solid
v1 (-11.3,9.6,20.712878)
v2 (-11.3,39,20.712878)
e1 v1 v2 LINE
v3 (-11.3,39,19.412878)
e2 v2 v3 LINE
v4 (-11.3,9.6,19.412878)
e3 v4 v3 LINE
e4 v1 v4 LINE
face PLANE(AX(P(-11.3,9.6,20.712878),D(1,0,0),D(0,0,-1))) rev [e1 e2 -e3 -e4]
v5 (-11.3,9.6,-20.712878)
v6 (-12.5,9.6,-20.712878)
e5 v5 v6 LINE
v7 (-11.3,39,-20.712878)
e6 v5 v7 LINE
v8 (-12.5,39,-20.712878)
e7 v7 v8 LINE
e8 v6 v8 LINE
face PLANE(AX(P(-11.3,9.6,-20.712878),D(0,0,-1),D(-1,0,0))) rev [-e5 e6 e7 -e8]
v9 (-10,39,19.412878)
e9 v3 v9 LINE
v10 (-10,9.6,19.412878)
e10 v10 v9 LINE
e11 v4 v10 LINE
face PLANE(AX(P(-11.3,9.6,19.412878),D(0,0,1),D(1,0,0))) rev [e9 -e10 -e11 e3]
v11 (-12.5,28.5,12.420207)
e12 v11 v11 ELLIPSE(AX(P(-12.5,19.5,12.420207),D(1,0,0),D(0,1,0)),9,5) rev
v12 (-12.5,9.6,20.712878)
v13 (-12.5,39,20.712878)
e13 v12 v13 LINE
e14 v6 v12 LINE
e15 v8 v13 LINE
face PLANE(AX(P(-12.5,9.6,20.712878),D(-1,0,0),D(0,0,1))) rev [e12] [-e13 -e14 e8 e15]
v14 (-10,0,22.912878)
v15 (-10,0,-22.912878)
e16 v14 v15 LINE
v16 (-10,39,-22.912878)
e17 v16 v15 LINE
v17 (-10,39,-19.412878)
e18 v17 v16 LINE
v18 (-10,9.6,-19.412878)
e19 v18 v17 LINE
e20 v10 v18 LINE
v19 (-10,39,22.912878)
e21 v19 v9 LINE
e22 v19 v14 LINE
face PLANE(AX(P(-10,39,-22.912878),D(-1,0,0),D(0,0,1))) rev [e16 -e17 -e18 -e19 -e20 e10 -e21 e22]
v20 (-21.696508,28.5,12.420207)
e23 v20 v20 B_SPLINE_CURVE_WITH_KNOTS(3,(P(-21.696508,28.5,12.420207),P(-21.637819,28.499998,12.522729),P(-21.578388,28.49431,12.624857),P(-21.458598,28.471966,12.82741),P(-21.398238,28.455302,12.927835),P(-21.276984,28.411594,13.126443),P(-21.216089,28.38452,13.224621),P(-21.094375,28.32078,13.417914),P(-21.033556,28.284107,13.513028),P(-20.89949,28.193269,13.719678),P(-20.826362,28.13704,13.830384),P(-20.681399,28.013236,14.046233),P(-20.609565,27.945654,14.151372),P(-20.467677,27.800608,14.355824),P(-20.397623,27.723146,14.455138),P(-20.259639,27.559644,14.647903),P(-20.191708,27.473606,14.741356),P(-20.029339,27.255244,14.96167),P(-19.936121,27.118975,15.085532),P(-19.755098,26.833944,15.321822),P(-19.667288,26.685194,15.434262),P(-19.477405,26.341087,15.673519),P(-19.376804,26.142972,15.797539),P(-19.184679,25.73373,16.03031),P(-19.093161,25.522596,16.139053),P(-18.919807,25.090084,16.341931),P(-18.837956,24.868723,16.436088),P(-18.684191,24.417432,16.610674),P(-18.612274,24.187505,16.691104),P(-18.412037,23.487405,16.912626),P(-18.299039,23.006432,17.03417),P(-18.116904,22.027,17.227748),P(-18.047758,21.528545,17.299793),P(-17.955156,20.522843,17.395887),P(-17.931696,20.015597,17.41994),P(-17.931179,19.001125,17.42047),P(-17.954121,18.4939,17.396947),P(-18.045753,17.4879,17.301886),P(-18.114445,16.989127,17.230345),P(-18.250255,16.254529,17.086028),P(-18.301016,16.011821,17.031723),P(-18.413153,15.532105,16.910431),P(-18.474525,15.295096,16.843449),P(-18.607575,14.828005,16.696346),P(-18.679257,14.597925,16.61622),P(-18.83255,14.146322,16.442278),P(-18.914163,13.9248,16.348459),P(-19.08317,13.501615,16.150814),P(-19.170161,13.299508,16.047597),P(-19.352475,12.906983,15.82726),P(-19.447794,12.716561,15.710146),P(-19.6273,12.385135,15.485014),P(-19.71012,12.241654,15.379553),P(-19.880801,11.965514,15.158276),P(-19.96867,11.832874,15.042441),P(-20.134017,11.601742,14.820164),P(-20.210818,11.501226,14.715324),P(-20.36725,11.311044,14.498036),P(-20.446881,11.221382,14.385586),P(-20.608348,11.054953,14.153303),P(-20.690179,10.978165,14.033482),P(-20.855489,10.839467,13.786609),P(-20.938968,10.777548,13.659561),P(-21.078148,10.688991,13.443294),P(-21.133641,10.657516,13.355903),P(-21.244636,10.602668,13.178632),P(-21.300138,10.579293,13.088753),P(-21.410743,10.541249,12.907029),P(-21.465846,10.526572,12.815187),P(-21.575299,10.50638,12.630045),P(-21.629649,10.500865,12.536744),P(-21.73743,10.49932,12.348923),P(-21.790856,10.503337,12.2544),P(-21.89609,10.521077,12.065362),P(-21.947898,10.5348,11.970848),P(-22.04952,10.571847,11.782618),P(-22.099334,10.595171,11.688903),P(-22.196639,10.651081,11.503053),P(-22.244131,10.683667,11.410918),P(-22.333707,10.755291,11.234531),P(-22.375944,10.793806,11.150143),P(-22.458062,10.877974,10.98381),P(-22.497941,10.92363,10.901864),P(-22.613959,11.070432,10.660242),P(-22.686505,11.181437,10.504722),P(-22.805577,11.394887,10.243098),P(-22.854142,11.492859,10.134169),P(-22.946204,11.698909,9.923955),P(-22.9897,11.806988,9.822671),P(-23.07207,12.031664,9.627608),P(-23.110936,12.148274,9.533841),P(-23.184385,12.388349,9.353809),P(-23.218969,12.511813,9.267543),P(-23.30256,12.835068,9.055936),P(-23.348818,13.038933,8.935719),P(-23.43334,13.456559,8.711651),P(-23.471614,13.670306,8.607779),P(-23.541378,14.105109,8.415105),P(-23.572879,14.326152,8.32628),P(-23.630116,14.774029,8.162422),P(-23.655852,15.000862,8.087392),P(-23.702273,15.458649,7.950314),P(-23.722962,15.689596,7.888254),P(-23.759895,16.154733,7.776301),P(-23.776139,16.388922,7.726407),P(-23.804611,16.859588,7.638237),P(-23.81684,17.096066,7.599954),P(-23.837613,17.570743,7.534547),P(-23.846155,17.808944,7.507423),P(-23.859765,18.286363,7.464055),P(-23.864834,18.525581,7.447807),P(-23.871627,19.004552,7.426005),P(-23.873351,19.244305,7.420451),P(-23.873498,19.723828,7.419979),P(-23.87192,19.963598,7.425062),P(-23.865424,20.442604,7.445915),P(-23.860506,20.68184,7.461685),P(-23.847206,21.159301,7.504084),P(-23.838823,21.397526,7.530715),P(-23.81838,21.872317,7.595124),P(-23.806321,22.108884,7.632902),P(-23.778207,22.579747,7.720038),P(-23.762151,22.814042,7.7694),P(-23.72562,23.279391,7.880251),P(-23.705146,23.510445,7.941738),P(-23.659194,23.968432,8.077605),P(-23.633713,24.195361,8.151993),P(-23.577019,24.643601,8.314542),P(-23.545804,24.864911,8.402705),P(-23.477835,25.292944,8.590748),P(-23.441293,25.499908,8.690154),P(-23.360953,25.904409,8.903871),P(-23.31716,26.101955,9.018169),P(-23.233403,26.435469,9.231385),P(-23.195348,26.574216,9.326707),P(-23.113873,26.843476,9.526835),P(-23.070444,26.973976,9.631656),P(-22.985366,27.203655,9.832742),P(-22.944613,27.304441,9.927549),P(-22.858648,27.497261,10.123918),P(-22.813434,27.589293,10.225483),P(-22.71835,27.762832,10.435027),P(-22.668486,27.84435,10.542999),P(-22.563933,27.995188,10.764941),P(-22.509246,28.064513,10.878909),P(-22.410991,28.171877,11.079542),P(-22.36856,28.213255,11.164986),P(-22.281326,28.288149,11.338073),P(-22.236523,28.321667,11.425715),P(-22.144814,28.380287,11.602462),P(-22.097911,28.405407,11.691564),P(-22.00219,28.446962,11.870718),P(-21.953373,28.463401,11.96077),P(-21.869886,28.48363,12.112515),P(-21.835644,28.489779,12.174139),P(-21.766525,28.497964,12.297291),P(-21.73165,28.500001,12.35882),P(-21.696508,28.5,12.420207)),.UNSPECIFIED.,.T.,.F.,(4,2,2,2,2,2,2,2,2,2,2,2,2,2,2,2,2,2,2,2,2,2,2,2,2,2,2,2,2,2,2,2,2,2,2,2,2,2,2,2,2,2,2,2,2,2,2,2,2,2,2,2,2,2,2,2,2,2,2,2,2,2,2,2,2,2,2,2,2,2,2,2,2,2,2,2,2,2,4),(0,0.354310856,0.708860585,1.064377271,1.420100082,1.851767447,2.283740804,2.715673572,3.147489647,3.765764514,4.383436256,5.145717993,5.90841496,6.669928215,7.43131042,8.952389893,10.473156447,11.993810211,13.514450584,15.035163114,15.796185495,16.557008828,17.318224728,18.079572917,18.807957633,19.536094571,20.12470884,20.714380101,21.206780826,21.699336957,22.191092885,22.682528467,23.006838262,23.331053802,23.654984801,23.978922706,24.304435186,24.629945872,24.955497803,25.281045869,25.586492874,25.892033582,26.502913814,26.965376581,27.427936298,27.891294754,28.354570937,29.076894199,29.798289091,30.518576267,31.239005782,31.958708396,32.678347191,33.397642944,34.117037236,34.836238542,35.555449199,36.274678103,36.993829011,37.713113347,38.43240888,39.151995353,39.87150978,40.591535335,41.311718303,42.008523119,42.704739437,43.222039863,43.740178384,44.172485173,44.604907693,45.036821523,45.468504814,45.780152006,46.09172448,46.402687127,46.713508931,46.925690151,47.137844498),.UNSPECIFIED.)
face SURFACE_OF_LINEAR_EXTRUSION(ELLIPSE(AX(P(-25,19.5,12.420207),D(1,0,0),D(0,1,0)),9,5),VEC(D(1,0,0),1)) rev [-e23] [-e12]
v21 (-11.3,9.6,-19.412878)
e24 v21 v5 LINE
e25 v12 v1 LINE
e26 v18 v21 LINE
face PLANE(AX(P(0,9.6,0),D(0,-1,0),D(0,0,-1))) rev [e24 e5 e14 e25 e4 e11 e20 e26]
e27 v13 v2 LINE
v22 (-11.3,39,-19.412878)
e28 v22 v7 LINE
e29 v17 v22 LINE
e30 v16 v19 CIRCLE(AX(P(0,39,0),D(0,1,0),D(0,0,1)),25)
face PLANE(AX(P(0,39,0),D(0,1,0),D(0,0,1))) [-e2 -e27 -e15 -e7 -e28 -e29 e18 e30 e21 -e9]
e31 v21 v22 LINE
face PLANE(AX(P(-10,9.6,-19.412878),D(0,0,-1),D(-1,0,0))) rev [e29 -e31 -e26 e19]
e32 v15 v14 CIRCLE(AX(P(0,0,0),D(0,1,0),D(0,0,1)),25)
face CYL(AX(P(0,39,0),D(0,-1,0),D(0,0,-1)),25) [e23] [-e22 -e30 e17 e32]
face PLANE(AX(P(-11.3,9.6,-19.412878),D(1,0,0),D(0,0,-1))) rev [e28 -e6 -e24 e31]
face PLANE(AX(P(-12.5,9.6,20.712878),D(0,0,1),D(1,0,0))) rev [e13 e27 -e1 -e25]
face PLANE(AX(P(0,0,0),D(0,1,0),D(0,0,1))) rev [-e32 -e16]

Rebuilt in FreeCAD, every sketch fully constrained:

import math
import FreeCAD as App
import Part
import Sketcher
from FreeCAD import Vector

doc = App.newDocument("Part")
body = doc.addObject("PartDesign::Body", "Body")

# Sketch on XZ plane
sketch1 = body.newObject("Sketcher::SketchObject", "Sketch")
sketch1.AttachmentSupport = (doc.getObject("XZ_Plane"), [""])
sketch1.MapMode = "FlatFace"
sketch1.addGeometry(Part.LineSegment(Vector(-10, 23, 0), Vector(-10, -23, 0)), False)
sketch1.addGeometry(Part.ArcOfCircle(Part.Circle(Vector(0, 0, 0), Vector(0, 0, 1), 25), math.radians(114), math.radians(246)), False)
sketch1.addConstraint(Sketcher.Constraint("Coincident", 0, 1, 1, 1))
sketch1.addConstraint(Sketcher.Constraint("Coincident", 1, 2, 0, 2))
sketch1.addConstraint(Sketcher.Constraint("Vertical", 0))
sketch1.addConstraint(Sketcher.Constraint("Coincident", 1, 3, -1, 1))
sketch1.addConstraint(Sketcher.Constraint("Radius", 1, 25.0))
sketch1.addConstraint(Sketcher.Constraint("DistanceX", 0, 1, -1, 1, 10.0))
pad1 = body.newObject("PartDesign::Pad", "Pad")
pad1.Profile = sketch1
pad1.Length = 39
pad1.Reversed = True

# Sketch on XZ plane
sketch2 = body.newObject("Sketcher::SketchObject", "Sketch001")
sketch2.AttachmentSupport = (doc.getObject("XZ_Plane"), [""])
sketch2.MapMode = "FlatFace"
sketch2.AttachmentOffset = App.Placement(Vector(0, 0, -39), App.Rotation())
sketch2.addGeometry(Part.LineSegment(Vector(-10, -19.4, 0), Vector(-11.3, -19.4, 0)), False)
sketch2.addGeometry(Part.LineSegment(Vector(-11.3, -19.4, 0), Vector(-11.3, -20.7, 0)), False)
sketch2.addGeometry(Part.LineSegment(Vector(-11.3, -20.7, 0), Vector(-12.5, -20.7, 0)), False)
sketch2.addGeometry(Part.LineSegment(Vector(-12.5, -20.7, 0), Vector(-12.5, 20.7, 0)), False)
sketch2.addGeometry(Part.LineSegment(Vector(-12.5, 20.7, 0), Vector(-11.3, 20.7, 0)), False)
sketch2.addGeometry(Part.LineSegment(Vector(-11.3, 20.7, 0), Vector(-11.3, 19.4, 0)), False)
sketch2.addGeometry(Part.LineSegment(Vector(-11.3, 19.4, 0), Vector(-10, 19.4, 0)), False)
sketch2.addGeometry(Part.LineSegment(Vector(-10, 19.4, 0), Vector(-10, -19.4, 0)), False)
sketch2.addConstraint(Sketcher.Constraint("Coincident", 0, 2, 1, 1))
sketch2.addConstraint(Sketcher.Constraint("Coincident", 1, 2, 2, 1))
sketch2.addConstraint(Sketcher.Constraint("Coincident", 2, 2, 3, 1))
sketch2.addConstraint(Sketcher.Constraint("Coincident", 3, 2, 4, 1))
sketch2.addConstraint(Sketcher.Constraint("Coincident", 4, 2, 5, 1))
sketch2.addConstraint(Sketcher.Constraint("Coincident", 5, 2, 6, 1))
sketch2.addConstraint(Sketcher.Constraint("Coincident", 6, 2, 7, 1))
sketch2.addConstraint(Sketcher.Constraint("Coincident", 7, 2, 0, 1))
sketch2.addConstraint(Sketcher.Constraint("Horizontal", 0))
sketch2.addConstraint(Sketcher.Constraint("Vertical", 1))
sketch2.addConstraint(Sketcher.Constraint("Horizontal", 2))
sketch2.addConstraint(Sketcher.Constraint("Vertical", 3))
sketch2.addConstraint(Sketcher.Constraint("Horizontal", 4))
sketch2.addConstraint(Sketcher.Constraint("Vertical", 5))
sketch2.addConstraint(Sketcher.Constraint("Horizontal", 6))
sketch2.addConstraint(Sketcher.Constraint("Vertical", 7))
sketch2.addConstraint(Sketcher.Constraint("Symmetric", 1, 2, 4, 2, -1))
sketch2.addConstraint(Sketcher.Constraint("Equal", 6, 1))
sketch2.addConstraint(Sketcher.Constraint("Equal", 1, 5))
sketch2.addConstraint(Sketcher.Constraint("DistanceX", 0, 2, 0, 1, 1.3))
sketch2.addConstraint(Sketcher.Constraint("DistanceX", 2, 2, 2, 1, 1.2))
sketch2.addConstraint(Sketcher.Constraint("DistanceX", 6, 2, -1, 1, 10.0))
sketch2.addConstraint(Sketcher.Constraint("DistanceY", 3, 1, 3, 2, 41.425757))
pocket1 = body.newObject("PartDesign::Pocket", "Pocket")
pocket1.Profile = sketch2
pocket1.Length = 29.4
pocket1.Reversed = True

# Sketch on YZ plane
sketch3 = body.newObject("Sketcher::SketchObject", "Sketch002")
sketch3.AttachmentSupport = (doc.getObject("YZ_Plane"), [""])
sketch3.MapMode = "FlatFace"
sketch3.AttachmentOffset = App.Placement(Vector(0, 0, -12.5), App.Rotation())
sketch3.addGeometry(Part.Ellipse(Vector(28.5, 12.420207, 0), Vector(19.5, 17.420207, 0), Vector(19.5, 12.420207, 0)), False)
sketch3.addConstraint(Sketcher.Constraint("Block", 0))
pocket2 = body.newObject("PartDesign::Pocket", "Pocket001")
pocket2.Profile = sketch3
pocket2.Type = "ThroughAll"
pocket2.Midplane = True

doc.recompute()
